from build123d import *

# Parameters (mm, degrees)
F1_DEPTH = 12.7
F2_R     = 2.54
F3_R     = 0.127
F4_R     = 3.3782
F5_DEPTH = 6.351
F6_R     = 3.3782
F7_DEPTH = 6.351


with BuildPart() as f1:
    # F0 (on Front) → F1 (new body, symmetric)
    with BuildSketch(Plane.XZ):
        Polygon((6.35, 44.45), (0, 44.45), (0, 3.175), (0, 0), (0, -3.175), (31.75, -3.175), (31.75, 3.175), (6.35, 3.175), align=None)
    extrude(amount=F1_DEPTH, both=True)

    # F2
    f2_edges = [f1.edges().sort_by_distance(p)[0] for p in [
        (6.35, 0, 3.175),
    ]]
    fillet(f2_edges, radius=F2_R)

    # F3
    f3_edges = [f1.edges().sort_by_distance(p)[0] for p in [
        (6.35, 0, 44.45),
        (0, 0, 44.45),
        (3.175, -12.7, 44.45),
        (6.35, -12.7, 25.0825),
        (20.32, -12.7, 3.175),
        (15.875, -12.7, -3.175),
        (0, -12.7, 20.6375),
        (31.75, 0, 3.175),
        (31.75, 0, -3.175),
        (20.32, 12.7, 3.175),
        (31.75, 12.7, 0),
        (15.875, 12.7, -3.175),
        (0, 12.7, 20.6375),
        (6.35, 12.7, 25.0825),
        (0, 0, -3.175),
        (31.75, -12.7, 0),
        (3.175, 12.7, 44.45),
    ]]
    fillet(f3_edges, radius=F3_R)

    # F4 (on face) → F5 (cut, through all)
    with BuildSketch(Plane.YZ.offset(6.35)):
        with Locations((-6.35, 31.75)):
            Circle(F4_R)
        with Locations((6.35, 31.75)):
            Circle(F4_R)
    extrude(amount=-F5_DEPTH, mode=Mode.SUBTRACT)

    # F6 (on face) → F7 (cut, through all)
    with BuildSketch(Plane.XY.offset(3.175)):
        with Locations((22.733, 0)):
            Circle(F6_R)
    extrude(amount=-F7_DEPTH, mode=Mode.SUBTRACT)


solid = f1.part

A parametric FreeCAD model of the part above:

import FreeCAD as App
import Part
import Sketcher
Q = App.Units.Quantity


def edges_at(feature, points):
    """Names of the edges that pass closest to the given points."""
    edges = feature.Shape.Edges
    near = lambda p: min(range(len(edges)), key=lambda i: edges[i].distToShape(Part.Vertex(*p))[0])
    return sorted({f"Edge{near(p) + 1}" for p in points})

doc = App.newDocument("Part")
body = doc.addObject("PartDesign::Body", "Body")

sketch1 = body.newObject("Sketcher::SketchObject", "Sketch")
sketch1.AttachmentSupport = (doc.getObject("XZ_Plane"), [""])
sketch1.MapMode = "FlatFace"
sketch1.addGeometry([
    Part.LineSegment(App.Vector(6, 44, 0), App.Vector(0, 44, 0)),
    Part.LineSegment(App.Vector(0, 44, 0), App.Vector(0, -3, 0)),
    Part.LineSegment(App.Vector(0, -3, 0), App.Vector(32, -3, 0)),
    Part.LineSegment(App.Vector(32, -3, 0), App.Vector(32, 3, 0)),
    Part.LineSegment(App.Vector(32, 3, 0), App.Vector(6, 3, 0)),
    Part.LineSegment(App.Vector(6, 3, 0), App.Vector(6, 44, 0)),
], False)
sketch1.addConstraint([
    Sketcher.Constraint("Coincident", 0, 2, 1, 1),
    Sketcher.Constraint("Coincident", 1, 2, 2, 1),
    Sketcher.Constraint("Coincident", 2, 2, 3, 1),
    Sketcher.Constraint("Coincident", 3, 2, 4, 1),
    Sketcher.Constraint("Coincident", 4, 2, 5, 1),
    Sketcher.Constraint("Coincident", 5, 2, 0, 1),
    Sketcher.Constraint("Horizontal", 0),
    Sketcher.Constraint("Vertical", 1),
    Sketcher.Constraint("Horizontal", 2),
    Sketcher.Constraint("Vertical", 3),
    Sketcher.Constraint("Horizontal", 4),
    Sketcher.Constraint("Vertical", 5),
    Sketcher.Constraint("PointOnObject", 0, 2, -2),
    Sketcher.Constraint("Equal", 0, 3),
    Sketcher.Constraint("DistanceX", 4, 2, 4, 1, Q("1 in")),
    Sketcher.Constraint("DistanceX", 0, 2, 0, 1, Q("0.25 in")),
    Sketcher.Constraint("DistanceY", 1, 2, 1, 1, Q("1.875 in")),
    Sketcher.Constraint("DistanceY", -1, 1, 0, 2, Q("1.75 in")),
])
pad1 = body.newObject("PartDesign::Pad", "Pad")
pad1.Profile = sketch1
pad1.Length = Q("1 in")
pad1.Midplane = True
doc.recompute()

fillet = body.newObject("PartDesign::Fillet", "Fillet")
fillet.Base = (pad1, edges_at(pad1, [(6.35, 0, 3.175)]))
fillet.Radius = Q("0.1 in")
doc.recompute()

fillet2 = body.newObject("PartDesign::Fillet", "Fillet001")
fillet2.Base = (fillet, ["Edge1"])
fillet2.UseAllEdges = True
fillet2.Radius = Q("0.005 in")

sketch2 = body.newObject("Sketcher::SketchObject", "Sketch001")
sketch2.AttachmentSupport = (doc.getObject("YZ_Plane"), [""])
sketch2.MapMode = "FlatFace"
sketch2.AttachmentOffset = App.Placement(App.Vector(0, 0, 0.25 * 25.4), App.Rotation())
sketch2.addGeometry([
    Part.Circle(App.Vector(-6.3, 31.8, 0), App.Vector(0, 0, 1), 3.4),
    Part.Circle(App.Vector(6.3, 31.8, 0), App.Vector(0, 0, 1), 3.4),
], False)
sketch2.addConstraint([
    Sketcher.Constraint("Equal", 0, 1),
    Sketcher.Constraint("Symmetric", 0, 3, 1, 3, -2),
    Sketcher.Constraint("Diameter", 0, Q("0.266 in")),
    Sketcher.Constraint("DistanceX", 0, 3, 1, 3, Q("0.5 in")),
    Sketcher.Constraint("DistanceY", -1, 1, 0, 3, Q("1.25 in")),
])
pocket1 = body.newObject("PartDesign::Pocket", "Pocket")
pocket1.Profile = sketch2
pocket1.Type = "ThroughAll"

sketch3 = body.newObject("Sketcher::SketchObject", "Sketch002")
sketch3.AttachmentSupport = (doc.getObject("XY_Plane"), [""])
sketch3.MapMode = "FlatFace"
sketch3.AttachmentOffset = App.Placement(App.Vector(0, 0, 0.125 * 25.4), App.Rotation())
sketch3.addGeometry(Part.Circle(App.Vector(22.7, 0, 0), App.Vector(0, 0, 1), 3.4), False)
sketch3.addConstraint([
    Sketcher.Constraint("PointOnObject", 0, 3, -1),
    Sketcher.Constraint("Diameter", 0, Q("0.266 in")),
    Sketcher.Constraint("DistanceX", -1, 1, 0, 3, Q("0.895 in")),
])
pocket2 = body.newObject("PartDesign::Pocket", "Pocket001")
pocket2.Profile = sketch3
pocket2.Type = "ThroughAll"

doc.recompute()
